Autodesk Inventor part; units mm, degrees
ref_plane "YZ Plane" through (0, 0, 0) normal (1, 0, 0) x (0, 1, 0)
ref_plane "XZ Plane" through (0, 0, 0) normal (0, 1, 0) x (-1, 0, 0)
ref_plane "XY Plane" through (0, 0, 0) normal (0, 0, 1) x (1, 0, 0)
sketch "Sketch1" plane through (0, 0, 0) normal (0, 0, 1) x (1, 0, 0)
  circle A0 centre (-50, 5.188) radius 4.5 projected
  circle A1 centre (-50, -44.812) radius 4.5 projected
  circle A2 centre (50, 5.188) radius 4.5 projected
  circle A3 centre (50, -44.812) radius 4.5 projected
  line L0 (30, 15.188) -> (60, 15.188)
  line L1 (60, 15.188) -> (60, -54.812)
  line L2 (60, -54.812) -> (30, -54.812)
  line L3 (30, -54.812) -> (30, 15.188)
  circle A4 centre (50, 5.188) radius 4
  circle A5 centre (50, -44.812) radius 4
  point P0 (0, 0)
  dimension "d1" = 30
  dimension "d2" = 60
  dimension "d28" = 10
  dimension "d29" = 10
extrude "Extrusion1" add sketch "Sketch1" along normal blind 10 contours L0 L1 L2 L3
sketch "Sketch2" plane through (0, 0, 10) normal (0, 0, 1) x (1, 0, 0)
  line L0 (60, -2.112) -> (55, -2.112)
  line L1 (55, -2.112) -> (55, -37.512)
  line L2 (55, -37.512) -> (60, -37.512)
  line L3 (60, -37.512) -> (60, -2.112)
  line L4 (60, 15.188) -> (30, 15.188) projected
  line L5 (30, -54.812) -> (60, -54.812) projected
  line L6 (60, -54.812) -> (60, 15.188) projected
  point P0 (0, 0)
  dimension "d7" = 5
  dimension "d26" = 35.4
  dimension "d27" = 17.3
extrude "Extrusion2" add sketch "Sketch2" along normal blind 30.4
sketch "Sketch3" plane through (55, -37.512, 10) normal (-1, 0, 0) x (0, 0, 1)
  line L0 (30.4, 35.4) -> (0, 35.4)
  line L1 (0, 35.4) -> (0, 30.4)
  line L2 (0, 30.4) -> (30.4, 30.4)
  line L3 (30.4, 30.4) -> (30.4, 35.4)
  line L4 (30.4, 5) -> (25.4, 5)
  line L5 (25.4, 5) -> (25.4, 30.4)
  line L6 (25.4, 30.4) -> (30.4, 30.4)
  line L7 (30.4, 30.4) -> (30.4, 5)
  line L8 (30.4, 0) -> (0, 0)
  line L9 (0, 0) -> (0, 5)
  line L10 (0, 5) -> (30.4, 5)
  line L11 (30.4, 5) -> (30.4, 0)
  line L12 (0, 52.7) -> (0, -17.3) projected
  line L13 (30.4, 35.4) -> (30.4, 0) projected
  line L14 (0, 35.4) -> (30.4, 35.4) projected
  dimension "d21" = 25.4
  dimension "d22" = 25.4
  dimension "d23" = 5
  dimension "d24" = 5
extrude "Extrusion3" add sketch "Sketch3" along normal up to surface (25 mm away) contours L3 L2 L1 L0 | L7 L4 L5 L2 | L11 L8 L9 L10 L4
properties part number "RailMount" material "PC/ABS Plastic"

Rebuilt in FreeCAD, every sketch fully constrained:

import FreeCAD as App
import Part
import Sketcher


def add_polygon(sketch, points):
    """Adds a closed chain of lines whose ends are joined by coincident constraints."""
    first, n = sketch.GeometryCount, len(points)
    for a, b in zip(points, points[1:] + points[:1]):
        sketch.addGeometry(Part.LineSegment(App.Vector(*a, 0), App.Vector(*b, 0)), False)
    for i in range(n):
        sketch.addConstraint(Sketcher.Constraint("Coincident", first + i, 2, first + (i + 1) % n, 1))

doc = App.newDocument("Part")
body = doc.addObject("PartDesign::Body", "Body")

sketch1 = body.newObject("Sketcher::SketchObject", "Sketch")
sketch1.AttachmentSupport = (doc.getObject("XY_Plane"), [""])
sketch1.MapMode = "FlatFace"
add_polygon(sketch1, [(60, 15.2), (30, 15.2), (30, -54.8), (60, -54.8)])
sketch1.addGeometry(Part.Circle(App.Vector(50, -44.8, 0), App.Vector(0, 0, 1), 4.5), False)
sketch1.addGeometry(Part.Circle(App.Vector(50, 5.2, 0), App.Vector(0, 0, 1), 4.5), False)
sketch1.addConstraint(Sketcher.Constraint("Horizontal", 0))
sketch1.addConstraint(Sketcher.Constraint("Vertical", 1))
sketch1.addConstraint(Sketcher.Constraint("Horizontal", 2))
sketch1.addConstraint(Sketcher.Constraint("Vertical", 3))
sketch1.addConstraint(Sketcher.Constraint("Equal", 4, 5))
sketch1.addConstraint(Sketcher.Constraint("Vertical", 4, 3, 5, 3))
sketch1.addConstraint(Sketcher.Constraint("DistanceX", 0, 2, 0, 1, 30.0))
sketch1.addConstraint(Sketcher.Constraint("Diameter", 4, 9.0))
sketch1.addConstraint(Sketcher.Constraint("DistanceX", -1, 1, 0, 2, 30.0))
sketch1.addConstraint(Sketcher.Constraint("DistanceY", 5, 3, 0, 2, 10.0))
sketch1.addConstraint(Sketcher.Constraint("DistanceY", 4, 3, 0, 2, 60.0))
sketch1.addConstraint(Sketcher.Constraint("DistanceY", 1, 2, 4, 3, 10.0))
sketch1.addConstraint(Sketcher.Constraint("DistanceX", 4, 3, 2, 2, 10.0))
sketch1.addConstraint(Sketcher.Constraint("DistanceY", 4, 3, -1, 1, 44.812))
pad1 = body.newObject("PartDesign::Pad", "Pad")
pad1.Profile = sketch1
pad1.Length = 10

sketch2 = body.newObject("Sketcher::SketchObject", "Sketch001")
sketch2.AttachmentSupport = (doc.getObject("XY_Plane"), [""])
sketch2.MapMode = "FlatFace"
sketch2.AttachmentOffset = App.Placement(App.Vector(0, 0, 10), App.Rotation())
add_polygon(sketch2, [(60, -38), (60, -2), (55, -2), (55, -38)])
sketch2.addConstraint(Sketcher.Constraint("Vertical", 0))
sketch2.addConstraint(Sketcher.Constraint("Horizontal", 1))
sketch2.addConstraint(Sketcher.Constraint("Vertical", 2))
sketch2.addConstraint(Sketcher.Constraint("Horizontal", 3))
sketch2.addConstraint(Sketcher.Constraint("DistanceX", 1, 2, 1, 1, 5.0))
sketch2.addConstraint(Sketcher.Constraint("DistanceY", 0, 1, 0, 2, 35.4))
sketch2.addConstraint(Sketcher.Constraint("DistanceX", -1, 1, 0, 2, 60.0))
sketch2.addConstraint(Sketcher.Constraint("DistanceY", 0, 2, -1, 1, 2.112))
pad2 = body.newObject("PartDesign::Pad", "Pad001")
pad2.Profile = sketch2
pad2.Length = 30.4

sketch3 = body.newObject("Sketcher::SketchObject", "Sketch002")
sketch3.AttachmentSupport = (doc.getObject("YZ_Plane"), [""])
sketch3.MapMode = "FlatFace"
sketch3.AttachmentOffset = App.Placement(App.Vector(0, 0, 55), App.Rotation())
add_polygon(sketch3, [(-2, 40), (-2, 10), (-7, 10), (-7, 35), (-33, 35), (-33, 10), (-38, 10), (-38, 40)])
sketch3.addConstraint(Sketcher.Constraint("Vertical", 0))
sketch3.addConstraint(Sketcher.Constraint("Horizontal", 1))
sketch3.addConstraint(Sketcher.Constraint("Vertical", 2))
sketch3.addConstraint(Sketcher.Constraint("Horizontal", 3))
sketch3.addConstraint(Sketcher.Constraint("Vertical", 4))
sketch3.addConstraint(Sketcher.Constraint("Horizontal", 5))
sketch3.addConstraint(Sketcher.Constraint("Vertical", 6))
sketch3.addConstraint(Sketcher.Constraint("Horizontal", 7))
sketch3.addConstraint(Sketcher.Constraint("Horizontal", 1, 2, 4, 2))
sketch3.addConstraint(Sketcher.Constraint("Equal", 1, 5))
sketch3.addConstraint(Sketcher.Constraint("Equal", 3, 2))
sketch3.addConstraint(Sketcher.Constraint("DistanceX", 1, 2, 1, 1, 5.0))
sketch3.addConstraint(Sketcher.Constraint("DistanceX", 3, 2, 3, 1, 25.4))
sketch3.addConstraint(Sketcher.Constraint("DistanceY", 3, 2, 6, 2, 5.0))
sketch3.addConstraint(Sketcher.Constraint("DistanceY", -1, 1, 0, 2, 10.0))
sketch3.addConstraint(Sketcher.Constraint("DistanceX", 0, 2, -1, 1, 2.112))
pad3 = body.newObject("PartDesign::Pad", "Pad002")
pad3.Profile = sketch3
pad3.Length = 25
pad3.Reversed = True

doc.recompute()
